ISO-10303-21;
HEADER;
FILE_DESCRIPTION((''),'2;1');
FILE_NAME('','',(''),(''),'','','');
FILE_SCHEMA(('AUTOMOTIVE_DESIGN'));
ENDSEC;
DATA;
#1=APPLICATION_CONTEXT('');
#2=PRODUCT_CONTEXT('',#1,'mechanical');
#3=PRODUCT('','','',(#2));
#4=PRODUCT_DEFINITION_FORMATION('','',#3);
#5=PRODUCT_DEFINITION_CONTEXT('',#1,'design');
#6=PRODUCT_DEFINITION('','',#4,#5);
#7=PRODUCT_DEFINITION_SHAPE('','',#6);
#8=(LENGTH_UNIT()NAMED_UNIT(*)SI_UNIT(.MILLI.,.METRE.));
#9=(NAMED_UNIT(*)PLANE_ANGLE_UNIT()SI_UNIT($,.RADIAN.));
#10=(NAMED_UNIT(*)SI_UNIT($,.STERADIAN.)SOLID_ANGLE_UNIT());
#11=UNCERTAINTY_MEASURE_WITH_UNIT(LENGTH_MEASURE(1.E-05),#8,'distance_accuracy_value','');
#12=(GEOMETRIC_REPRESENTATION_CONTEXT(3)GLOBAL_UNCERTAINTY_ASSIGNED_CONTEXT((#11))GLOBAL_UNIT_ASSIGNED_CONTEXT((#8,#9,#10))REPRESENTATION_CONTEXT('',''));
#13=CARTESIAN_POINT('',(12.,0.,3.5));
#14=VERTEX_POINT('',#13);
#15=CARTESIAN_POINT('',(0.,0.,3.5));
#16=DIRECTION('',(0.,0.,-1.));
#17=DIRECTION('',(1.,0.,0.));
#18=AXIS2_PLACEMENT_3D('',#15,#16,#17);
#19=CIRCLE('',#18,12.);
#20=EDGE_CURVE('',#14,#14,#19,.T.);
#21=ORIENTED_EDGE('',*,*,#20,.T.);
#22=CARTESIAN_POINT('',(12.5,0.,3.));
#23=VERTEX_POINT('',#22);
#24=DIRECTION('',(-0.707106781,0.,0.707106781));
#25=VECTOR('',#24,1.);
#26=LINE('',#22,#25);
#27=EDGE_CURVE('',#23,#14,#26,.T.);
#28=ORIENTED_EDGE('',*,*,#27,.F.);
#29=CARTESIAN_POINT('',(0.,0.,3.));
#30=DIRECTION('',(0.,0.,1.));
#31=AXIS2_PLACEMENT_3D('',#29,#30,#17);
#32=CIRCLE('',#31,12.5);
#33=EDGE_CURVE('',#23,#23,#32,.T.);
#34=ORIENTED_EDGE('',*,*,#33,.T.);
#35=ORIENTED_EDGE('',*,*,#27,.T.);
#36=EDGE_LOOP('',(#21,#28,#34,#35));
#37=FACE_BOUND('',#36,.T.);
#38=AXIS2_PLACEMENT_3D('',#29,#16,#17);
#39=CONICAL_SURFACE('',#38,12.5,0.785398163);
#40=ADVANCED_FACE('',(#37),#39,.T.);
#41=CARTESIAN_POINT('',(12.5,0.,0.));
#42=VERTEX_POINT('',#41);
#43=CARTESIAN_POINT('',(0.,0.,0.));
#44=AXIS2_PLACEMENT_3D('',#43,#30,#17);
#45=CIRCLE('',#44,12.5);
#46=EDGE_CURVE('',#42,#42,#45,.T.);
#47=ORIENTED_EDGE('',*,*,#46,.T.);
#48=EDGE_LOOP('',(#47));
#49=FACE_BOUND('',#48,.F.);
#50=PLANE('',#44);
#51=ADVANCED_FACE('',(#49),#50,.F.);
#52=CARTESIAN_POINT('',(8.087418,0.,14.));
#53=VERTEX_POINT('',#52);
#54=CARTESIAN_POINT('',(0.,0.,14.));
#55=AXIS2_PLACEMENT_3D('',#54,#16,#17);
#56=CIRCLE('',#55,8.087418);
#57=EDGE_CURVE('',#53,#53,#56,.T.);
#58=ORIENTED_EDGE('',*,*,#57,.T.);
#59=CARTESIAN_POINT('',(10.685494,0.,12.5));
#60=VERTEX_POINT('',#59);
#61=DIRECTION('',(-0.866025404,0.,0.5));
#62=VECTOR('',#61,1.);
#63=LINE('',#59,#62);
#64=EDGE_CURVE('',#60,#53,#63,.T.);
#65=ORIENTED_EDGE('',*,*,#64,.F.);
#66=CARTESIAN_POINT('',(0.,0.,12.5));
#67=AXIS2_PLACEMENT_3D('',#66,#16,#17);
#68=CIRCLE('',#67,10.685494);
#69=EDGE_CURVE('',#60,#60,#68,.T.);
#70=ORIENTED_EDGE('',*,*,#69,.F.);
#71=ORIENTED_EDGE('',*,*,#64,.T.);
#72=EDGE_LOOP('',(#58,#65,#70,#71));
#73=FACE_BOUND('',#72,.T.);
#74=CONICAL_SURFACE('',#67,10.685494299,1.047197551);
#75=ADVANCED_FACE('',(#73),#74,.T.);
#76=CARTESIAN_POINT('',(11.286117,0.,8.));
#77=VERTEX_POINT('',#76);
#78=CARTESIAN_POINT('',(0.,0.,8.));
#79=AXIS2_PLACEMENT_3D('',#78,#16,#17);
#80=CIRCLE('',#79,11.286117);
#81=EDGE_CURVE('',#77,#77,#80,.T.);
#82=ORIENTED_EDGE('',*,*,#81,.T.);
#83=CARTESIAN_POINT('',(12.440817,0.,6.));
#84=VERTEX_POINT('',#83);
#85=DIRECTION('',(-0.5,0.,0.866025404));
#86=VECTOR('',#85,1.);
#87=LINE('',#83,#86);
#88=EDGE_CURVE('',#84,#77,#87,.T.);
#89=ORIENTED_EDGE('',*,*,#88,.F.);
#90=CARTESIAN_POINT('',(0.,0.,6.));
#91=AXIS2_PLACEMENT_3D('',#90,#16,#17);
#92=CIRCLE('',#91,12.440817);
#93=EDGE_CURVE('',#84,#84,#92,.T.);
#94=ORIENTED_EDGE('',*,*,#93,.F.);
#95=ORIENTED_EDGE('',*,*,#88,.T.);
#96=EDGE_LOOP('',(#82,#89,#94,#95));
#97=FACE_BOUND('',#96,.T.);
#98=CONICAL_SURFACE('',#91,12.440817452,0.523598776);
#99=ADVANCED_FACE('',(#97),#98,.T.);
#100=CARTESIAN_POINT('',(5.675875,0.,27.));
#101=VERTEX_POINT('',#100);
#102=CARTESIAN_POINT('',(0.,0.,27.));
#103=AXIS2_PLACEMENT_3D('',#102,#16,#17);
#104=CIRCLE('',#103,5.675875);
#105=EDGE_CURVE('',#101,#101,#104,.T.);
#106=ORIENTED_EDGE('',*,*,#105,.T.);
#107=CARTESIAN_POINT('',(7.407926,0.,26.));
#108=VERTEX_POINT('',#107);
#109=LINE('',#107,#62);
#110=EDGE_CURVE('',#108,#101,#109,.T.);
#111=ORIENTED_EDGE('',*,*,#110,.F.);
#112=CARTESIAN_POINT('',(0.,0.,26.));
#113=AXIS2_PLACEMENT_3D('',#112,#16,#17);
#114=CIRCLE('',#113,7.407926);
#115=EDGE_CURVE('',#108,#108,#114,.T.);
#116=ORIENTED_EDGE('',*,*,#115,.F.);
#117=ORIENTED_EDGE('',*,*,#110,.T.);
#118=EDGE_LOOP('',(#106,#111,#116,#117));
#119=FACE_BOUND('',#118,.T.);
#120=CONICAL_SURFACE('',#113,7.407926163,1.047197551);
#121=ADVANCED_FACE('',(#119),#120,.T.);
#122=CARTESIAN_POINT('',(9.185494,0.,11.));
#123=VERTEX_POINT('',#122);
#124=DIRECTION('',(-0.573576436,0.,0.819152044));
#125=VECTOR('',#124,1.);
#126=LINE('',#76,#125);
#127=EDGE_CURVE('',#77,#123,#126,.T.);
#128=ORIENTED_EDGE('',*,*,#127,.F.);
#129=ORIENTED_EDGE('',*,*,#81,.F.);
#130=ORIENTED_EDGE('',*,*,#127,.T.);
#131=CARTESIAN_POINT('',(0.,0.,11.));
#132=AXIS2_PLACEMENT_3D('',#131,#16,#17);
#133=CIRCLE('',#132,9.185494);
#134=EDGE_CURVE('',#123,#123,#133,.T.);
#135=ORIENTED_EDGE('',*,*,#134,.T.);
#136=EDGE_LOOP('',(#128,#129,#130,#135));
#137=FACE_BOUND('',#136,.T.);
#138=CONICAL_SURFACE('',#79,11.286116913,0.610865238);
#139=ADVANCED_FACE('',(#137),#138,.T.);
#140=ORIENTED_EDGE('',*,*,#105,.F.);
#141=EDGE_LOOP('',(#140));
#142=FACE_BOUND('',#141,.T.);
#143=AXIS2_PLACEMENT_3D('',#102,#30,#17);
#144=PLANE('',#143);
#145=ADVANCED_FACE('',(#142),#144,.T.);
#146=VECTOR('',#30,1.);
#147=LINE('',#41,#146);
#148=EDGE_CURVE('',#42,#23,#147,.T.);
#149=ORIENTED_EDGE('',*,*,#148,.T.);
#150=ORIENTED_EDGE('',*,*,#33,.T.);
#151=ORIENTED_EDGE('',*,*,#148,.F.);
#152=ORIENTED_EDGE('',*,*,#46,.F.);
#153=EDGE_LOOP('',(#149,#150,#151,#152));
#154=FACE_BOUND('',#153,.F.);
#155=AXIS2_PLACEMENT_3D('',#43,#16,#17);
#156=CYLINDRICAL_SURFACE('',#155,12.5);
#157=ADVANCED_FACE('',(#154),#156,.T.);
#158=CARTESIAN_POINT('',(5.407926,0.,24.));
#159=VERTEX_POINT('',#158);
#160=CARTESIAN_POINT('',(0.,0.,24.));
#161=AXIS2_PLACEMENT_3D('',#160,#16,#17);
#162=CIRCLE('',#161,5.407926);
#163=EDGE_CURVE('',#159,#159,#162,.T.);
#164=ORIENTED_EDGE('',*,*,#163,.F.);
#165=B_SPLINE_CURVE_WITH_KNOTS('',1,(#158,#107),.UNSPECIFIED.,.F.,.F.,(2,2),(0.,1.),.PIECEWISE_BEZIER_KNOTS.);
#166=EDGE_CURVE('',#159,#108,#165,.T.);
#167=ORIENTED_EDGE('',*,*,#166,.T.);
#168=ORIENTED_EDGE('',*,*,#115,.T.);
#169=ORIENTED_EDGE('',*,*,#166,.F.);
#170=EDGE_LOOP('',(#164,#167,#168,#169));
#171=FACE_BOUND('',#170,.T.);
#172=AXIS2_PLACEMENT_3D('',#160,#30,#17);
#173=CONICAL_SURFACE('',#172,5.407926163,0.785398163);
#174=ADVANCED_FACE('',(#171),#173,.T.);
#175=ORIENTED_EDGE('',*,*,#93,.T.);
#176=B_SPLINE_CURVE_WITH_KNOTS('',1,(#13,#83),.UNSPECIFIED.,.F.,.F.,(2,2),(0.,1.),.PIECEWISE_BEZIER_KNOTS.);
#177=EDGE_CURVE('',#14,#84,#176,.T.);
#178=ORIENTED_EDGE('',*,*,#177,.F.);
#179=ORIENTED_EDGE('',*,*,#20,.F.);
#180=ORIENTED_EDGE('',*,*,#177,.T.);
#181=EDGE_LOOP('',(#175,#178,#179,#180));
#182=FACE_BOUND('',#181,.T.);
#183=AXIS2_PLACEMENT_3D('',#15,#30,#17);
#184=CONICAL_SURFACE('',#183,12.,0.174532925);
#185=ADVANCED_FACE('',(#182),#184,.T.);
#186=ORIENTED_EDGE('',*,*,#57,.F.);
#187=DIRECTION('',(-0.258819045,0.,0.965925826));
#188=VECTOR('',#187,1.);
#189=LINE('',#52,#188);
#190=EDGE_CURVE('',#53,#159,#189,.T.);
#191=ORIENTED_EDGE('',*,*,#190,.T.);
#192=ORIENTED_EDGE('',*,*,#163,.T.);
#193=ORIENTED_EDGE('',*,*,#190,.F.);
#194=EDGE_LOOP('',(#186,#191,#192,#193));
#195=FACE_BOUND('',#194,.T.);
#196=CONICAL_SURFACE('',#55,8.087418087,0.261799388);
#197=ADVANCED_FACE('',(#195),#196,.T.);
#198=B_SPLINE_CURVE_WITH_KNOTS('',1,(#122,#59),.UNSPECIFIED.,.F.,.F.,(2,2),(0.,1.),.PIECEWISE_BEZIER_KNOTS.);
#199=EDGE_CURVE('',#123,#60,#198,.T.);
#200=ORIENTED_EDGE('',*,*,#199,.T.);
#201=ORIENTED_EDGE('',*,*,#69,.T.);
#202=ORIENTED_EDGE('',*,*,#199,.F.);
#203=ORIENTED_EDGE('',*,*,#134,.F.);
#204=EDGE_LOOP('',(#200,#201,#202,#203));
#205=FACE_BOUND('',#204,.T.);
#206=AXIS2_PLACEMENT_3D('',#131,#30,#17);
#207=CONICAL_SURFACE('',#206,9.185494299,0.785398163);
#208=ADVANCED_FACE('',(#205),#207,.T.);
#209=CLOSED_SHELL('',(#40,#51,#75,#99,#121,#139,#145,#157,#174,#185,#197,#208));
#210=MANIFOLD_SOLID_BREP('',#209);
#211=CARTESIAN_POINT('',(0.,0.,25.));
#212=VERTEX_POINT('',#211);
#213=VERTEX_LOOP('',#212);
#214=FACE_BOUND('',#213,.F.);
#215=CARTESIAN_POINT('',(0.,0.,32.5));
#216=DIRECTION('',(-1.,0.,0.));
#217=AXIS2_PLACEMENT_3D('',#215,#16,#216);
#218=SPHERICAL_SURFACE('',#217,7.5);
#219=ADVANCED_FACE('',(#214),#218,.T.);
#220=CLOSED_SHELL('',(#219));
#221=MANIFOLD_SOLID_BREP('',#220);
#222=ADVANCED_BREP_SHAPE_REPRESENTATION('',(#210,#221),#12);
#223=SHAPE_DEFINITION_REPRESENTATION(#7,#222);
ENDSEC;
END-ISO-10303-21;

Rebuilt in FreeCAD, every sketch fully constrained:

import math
import FreeCAD as App
import Part
import Sketcher
from FreeCAD import Vector

doc = App.newDocument("Part")
body = doc.addObject("PartDesign::Body", "Body")

# Sketch on XY plane
sketch1 = body.newObject("Sketcher::SketchObject", "Sketch")
sketch1.AttachmentSupport = (doc.getObject("XY_Plane"), [""])
sketch1.MapMode = "FlatFace"
sketch1.addGeometry(Part.Circle(Vector(0, 0, 0), Vector(0, 0, 1), 12), False)
sketch1.addConstraint(Sketcher.Constraint("Coincident", 0, 3, -1, 1))
sketch1.addConstraint(Sketcher.Constraint("Diameter", 0, 25.0))
pad1 = body.newObject("PartDesign::Pad", "Pad")
pad1.Profile = sketch1
pad1.Length = 3

# Sketch on XY plane
sketch2 = body.newObject("Sketcher::SketchObject", "Sketch001")
sketch2.AttachmentSupport = (doc.getObject("XY_Plane"), [""])
sketch2.MapMode = "FlatFace"
sketch2.AttachmentOffset = App.Placement(Vector(0, 0, 3), App.Rotation())
sketch2.addGeometry(Part.Circle(Vector(0, 0, 0), Vector(0, 0, 1), 12), False)
sketch2.addConstraint(Sketcher.Constraint("Coincident", 0, 3, -1, 1))
sketch2.addConstraint(Sketcher.Constraint("Diameter", 0, 25.0))
pad2 = body.newObject("PartDesign::Pad", "Pad001")
pad2.Profile = sketch2
pad2.Length = 0.5
pad2.TaperAngle = -45

# Sketch on XY plane
sketch3 = body.newObject("Sketcher::SketchObject", "Sketch002")
sketch3.AttachmentSupport = (doc.getObject("XY_Plane"), [""])
sketch3.MapMode = "FlatFace"
sketch3.AttachmentOffset = App.Placement(Vector(0, 0, 3.5), App.Rotation())
sketch3.addGeometry(Part.Circle(Vector(0, 0, 0), Vector(0, 0, 1), 12), False)
sketch3.addConstraint(Sketcher.Constraint("Coincident", 0, 3, -1, 1))
sketch3.addConstraint(Sketcher.Constraint("Diameter", 0, 24.0))
pad3 = body.newObject("PartDesign::Pad", "Pad002")
pad3.Profile = sketch3
pad3.Length = 2.5
pad3.TaperAngle = 10

# Sketch on XY plane
sketch4 = body.newObject("Sketcher::SketchObject", "Sketch003")
sketch4.AttachmentSupport = (doc.getObject("XY_Plane"), [""])
sketch4.MapMode = "FlatFace"
sketch4.AttachmentOffset = App.Placement(Vector(0, 0, 6), App.Rotation())
sketch4.addGeometry(Part.Circle(Vector(0, 0, 0), Vector(0, 0, 1), 12), False)
sketch4.addConstraint(Sketcher.Constraint("Coincident", 0, 3, -1, 1))
sketch4.addConstraint(Sketcher.Constraint("Diameter", 0, 24.881635))
pad4 = body.newObject("PartDesign::Pad", "Pad003")
pad4.Profile = sketch4
pad4.Length = 2
pad4.TaperAngle = -30

# Sketch on XY plane
sketch5 = body.newObject("Sketcher::SketchObject", "Sketch004")
sketch5.AttachmentSupport = (doc.getObject("XY_Plane"), [""])
sketch5.MapMode = "FlatFace"
sketch5.AttachmentOffset = App.Placement(Vector(0, 0, 8), App.Rotation())
sketch5.addGeometry(Part.Circle(Vector(0, 0, 0), Vector(0, 0, 1), 11), False)
sketch5.addConstraint(Sketcher.Constraint("Coincident", 0, 3, -1, 1))
sketch5.addConstraint(Sketcher.Constraint("Diameter", 0, 22.572234))
pad5 = body.newObject("PartDesign::Pad", "Pad004")
pad5.Profile = sketch5
pad5.Length = 3
pad5.TaperAngle = -35

# Sketch on XY plane
sketch6 = body.newObject("Sketcher::SketchObject", "Sketch005")
sketch6.AttachmentSupport = (doc.getObject("XY_Plane"), [""])
sketch6.MapMode = "FlatFace"
sketch6.AttachmentOffset = App.Placement(Vector(0, 0, 11), App.Rotation())
sketch6.addGeometry(Part.Circle(Vector(0, 0, 0), Vector(0, 0, 1), 9), False)
sketch6.addConstraint(Sketcher.Constraint("Coincident", 0, 3, -1, 1))
sketch6.addConstraint(Sketcher.Constraint("Diameter", 0, 18.370989))
pad6 = body.newObject("PartDesign::Pad", "Pad005")
pad6.Profile = sketch6
pad6.Length = 1.5
pad6.TaperAngle = 45

# Sketch on XY plane
sketch7 = body.newObject("Sketcher::SketchObject", "Sketch006")
sketch7.AttachmentSupport = (doc.getObject("XY_Plane"), [""])
sketch7.MapMode = "FlatFace"
sketch7.AttachmentOffset = App.Placement(Vector(0, 0, 12.5), App.Rotation())
sketch7.addGeometry(Part.Circle(Vector(0, 0, 0), Vector(0, 0, 1), 11), False)
sketch7.addConstraint(Sketcher.Constraint("Coincident", 0, 3, -1, 1))
sketch7.addConstraint(Sketcher.Constraint("Diameter", 0, 21.370989))
pad7 = body.newObject("PartDesign::Pad", "Pad006")
pad7.Profile = sketch7
pad7.Length = 1.5
pad7.TaperAngle = -60

# Sketch on XY plane
sketch8 = body.newObject("Sketcher::SketchObject", "Sketch007")
sketch8.AttachmentSupport = (doc.getObject("XY_Plane"), [""])
sketch8.MapMode = "FlatFace"
sketch8.AttachmentOffset = App.Placement(Vector(0, 0, 14), App.Rotation())
sketch8.addGeometry(Part.Circle(Vector(0, 0, 0), Vector(0, 0, 1), 8), False)
sketch8.addConstraint(Sketcher.Constraint("Coincident", 0, 3, -1, 1))
sketch8.addConstraint(Sketcher.Constraint("Diameter", 0, 16.174836))
pad8 = body.newObject("PartDesign::Pad", "Pad007")
pad8.Profile = sketch8
pad8.Length = 10
pad8.TaperAngle = -15

# Sketch on XY plane
sketch9 = body.newObject("Sketcher::SketchObject", "Sketch008")
sketch9.AttachmentSupport = (doc.getObject("XY_Plane"), [""])
sketch9.MapMode = "FlatFace"
sketch9.AttachmentOffset = App.Placement(Vector(0, 0, 24), App.Rotation())
sketch9.addGeometry(Part.Circle(Vector(0, 0, 0), Vector(0, 0, 1), 5), False)
sketch9.addConstraint(Sketcher.Constraint("Coincident", 0, 3, -1, 1))
sketch9.addConstraint(Sketcher.Constraint("Diameter", 0, 10.815852))
pad9 = body.newObject("PartDesign::Pad", "Pad008")
pad9.Profile = sketch9
pad9.Length = 2
pad9.TaperAngle = 45

# Sketch on XY plane
sketch10 = body.newObject("Sketcher::SketchObject", "Sketch009")
sketch10.AttachmentSupport = (doc.getObject("XY_Plane"), [""])
sketch10.MapMode = "FlatFace"
sketch10.AttachmentOffset = App.Placement(Vector(0, 0, 26), App.Rotation())
sketch10.addGeometry(Part.Circle(Vector(0, 0, 0), Vector(0, 0, 1), 7), False)
sketch10.addConstraint(Sketcher.Constraint("Coincident", 0, 3, -1, 1))
sketch10.addConstraint(Sketcher.Constraint("Diameter", 0, 14.815852))
pad10 = body.newObject("PartDesign::Pad", "Pad009")
pad10.Profile = sketch10
pad10.Length = 1
pad10.TaperAngle = -60
body2 = doc.addObject("PartDesign::Body", "Body001")

# Sketch on XZ plane
sketch11 = body2.newObject("Sketcher::SketchObject", "Sketch010")
sketch11.AttachmentSupport = (doc.getObject("XZ_Plane001"), [""])
sketch11.MapMode = "FlatFace"
sketch11.addGeometry(Part.ArcOfCircle(Part.Circle(Vector(0, 32, 0), Vector(0, 0, 1), 8), math.radians(90), math.radians(270)), False)
sketch11.addGeometry(Part.LineSegment(Vector(0, 25, 0), Vector(0, 40, 0)), False)
sketch11.addConstraint(Sketcher.Constraint("Coincident", 0, 1, 1, 2))
sketch11.addConstraint(Sketcher.Constraint("Coincident", 1, 1, 0, 2))
sketch11.addConstraint(Sketcher.Constraint("Vertical", 1))
sketch11.addConstraint(Sketcher.Constraint("PointOnObject", 0, 3, -2))
sketch11.addConstraint(Sketcher.Constraint("PointOnObject", 0, 1, -2))
sketch11.addConstraint(Sketcher.Constraint("Radius", 0, 7.5))
sketch11.addConstraint(Sketcher.Constraint("DistanceY", -1, 1, 0, 1, 40.0))
revolution = body2.newObject("PartDesign::Revolution", "Revolution")
revolution.Profile = sketch11
revolution.ReferenceAxis = (sketch11, ["V_Axis"])
revolution.Angle = 360

doc.recompute()
